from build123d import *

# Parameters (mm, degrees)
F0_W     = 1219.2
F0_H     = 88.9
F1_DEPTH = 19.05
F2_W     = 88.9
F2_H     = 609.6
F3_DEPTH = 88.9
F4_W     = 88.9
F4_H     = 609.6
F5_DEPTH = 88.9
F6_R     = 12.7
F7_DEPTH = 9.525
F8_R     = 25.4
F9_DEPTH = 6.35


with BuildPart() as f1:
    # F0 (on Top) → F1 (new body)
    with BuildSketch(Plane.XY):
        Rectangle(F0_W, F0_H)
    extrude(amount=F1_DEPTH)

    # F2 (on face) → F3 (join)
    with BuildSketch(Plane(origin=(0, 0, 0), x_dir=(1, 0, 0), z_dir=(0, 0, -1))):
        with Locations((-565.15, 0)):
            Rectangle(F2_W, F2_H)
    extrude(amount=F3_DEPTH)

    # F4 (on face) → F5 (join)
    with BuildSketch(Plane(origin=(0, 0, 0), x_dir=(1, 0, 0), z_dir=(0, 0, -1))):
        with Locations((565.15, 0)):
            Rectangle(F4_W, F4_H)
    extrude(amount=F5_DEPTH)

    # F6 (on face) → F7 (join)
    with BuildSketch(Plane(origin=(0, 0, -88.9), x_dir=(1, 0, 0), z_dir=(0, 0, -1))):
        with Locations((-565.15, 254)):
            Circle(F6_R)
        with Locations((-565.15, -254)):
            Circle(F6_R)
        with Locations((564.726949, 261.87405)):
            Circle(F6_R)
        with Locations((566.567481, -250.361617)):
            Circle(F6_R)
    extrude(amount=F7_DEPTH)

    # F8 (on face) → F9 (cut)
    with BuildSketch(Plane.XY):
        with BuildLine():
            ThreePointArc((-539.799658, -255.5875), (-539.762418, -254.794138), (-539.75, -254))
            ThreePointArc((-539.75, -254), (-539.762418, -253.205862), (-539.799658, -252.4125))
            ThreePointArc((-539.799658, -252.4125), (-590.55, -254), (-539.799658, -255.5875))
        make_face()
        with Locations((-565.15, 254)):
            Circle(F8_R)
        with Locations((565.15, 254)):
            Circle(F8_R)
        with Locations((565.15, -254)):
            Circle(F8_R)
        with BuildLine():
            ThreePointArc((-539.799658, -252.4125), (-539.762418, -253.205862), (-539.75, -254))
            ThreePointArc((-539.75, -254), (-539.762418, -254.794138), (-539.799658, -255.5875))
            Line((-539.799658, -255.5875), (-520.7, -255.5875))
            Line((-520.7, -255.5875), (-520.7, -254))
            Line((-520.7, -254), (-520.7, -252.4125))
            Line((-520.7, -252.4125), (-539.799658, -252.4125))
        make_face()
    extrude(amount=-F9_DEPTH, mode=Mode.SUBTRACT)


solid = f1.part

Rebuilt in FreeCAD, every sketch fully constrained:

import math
import FreeCAD as App
import Part
import Sketcher
Q = App.Units.Quantity


def add_polygon(sketch, points):
    """Adds a closed chain of lines whose ends are joined by coincident constraints."""
    first, n = sketch.GeometryCount, len(points)
    for a, b in zip(points, points[1:] + points[:1]):
        sketch.addGeometry(Part.LineSegment(App.Vector(*a, 0), App.Vector(*b, 0)), False)
    for i in range(n):
        sketch.addConstraint(Sketcher.Constraint("Coincident", first + i, 2, first + (i + 1) % n, 1))

doc = App.newDocument("Part")
body = doc.addObject("PartDesign::Body", "Body")

sketch1 = body.newObject("Sketcher::SketchObject", "Sketch")
sketch1.AttachmentSupport = (doc.getObject("XY_Plane"), [""])
sketch1.MapMode = "FlatFace"
add_polygon(sketch1, [(-610, 44), (-610, -44), (610, -44), (610, 44)])
sketch1.addConstraint(Sketcher.Constraint("Vertical", 0))
sketch1.addConstraint(Sketcher.Constraint("Horizontal", 1))
sketch1.addConstraint(Sketcher.Constraint("Vertical", 2))
sketch1.addConstraint(Sketcher.Constraint("Horizontal", 3))
sketch1.addConstraint(Sketcher.Constraint("Symmetric", 0, 2, 2, 2, -1, 1))
sketch1.addConstraint(Sketcher.Constraint("DistanceX", 1, 1, 1, 2, Q("48 in")))
sketch1.addConstraint(Sketcher.Constraint("DistanceY", 0, 2, 0, 1, Q("3.5 in")))
pad1 = body.newObject("PartDesign::Pad", "Pad")
pad1.Profile = sketch1
pad1.Length = Q("0.75 in")

sketch2 = body.newObject("Sketcher::SketchObject", "Sketch001")
sketch2.AttachmentSupport = (doc.getObject("XY_Plane"), [""])
sketch2.MapMode = "FlatFace"
add_polygon(sketch2, [(-610, -305), (-610, 305), (-521, 305), (-521, -305)])
sketch2.addConstraint(Sketcher.Constraint("Vertical", 0))
sketch2.addConstraint(Sketcher.Constraint("Horizontal", 1))
sketch2.addConstraint(Sketcher.Constraint("Vertical", 2))
sketch2.addConstraint(Sketcher.Constraint("Horizontal", 3))
sketch2.addConstraint(Sketcher.Constraint("DistanceY", 0, 1, 0, 2, Q("24 in")))
sketch2.addConstraint(Sketcher.Constraint("DistanceX", 1, 1, 1, 2, Q("3.5 in")))
sketch2.addConstraint(Sketcher.Constraint("DistanceX", 0, 2, -1, 1, Q("24 in")))
sketch2.addConstraint(Sketcher.Constraint("DistanceY", -1, 1, 0, 2, Q("12 in")))
pad2 = body.newObject("PartDesign::Pad", "Pad001")
pad2.Profile = sketch2
pad2.Length = Q("3.5 in")
pad2.Reversed = True

sketch3 = body.newObject("Sketcher::SketchObject", "Sketch002")
sketch3.AttachmentSupport = (doc.getObject("XY_Plane"), [""])
sketch3.MapMode = "FlatFace"
add_polygon(sketch3, [(521, -305), (521, 305), (610, 305), (610, -305)])
sketch3.addConstraint(Sketcher.Constraint("Vertical", 0))
sketch3.addConstraint(Sketcher.Constraint("Horizontal", 1))
sketch3.addConstraint(Sketcher.Constraint("Vertical", 2))
sketch3.addConstraint(Sketcher.Constraint("Horizontal", 3))
sketch3.addConstraint(Sketcher.Constraint("DistanceY", 0, 1, 0, 2, Q("24 in")))
sketch3.addConstraint(Sketcher.Constraint("DistanceX", 1, 1, 1, 2, Q("3.5 in")))
sketch3.addConstraint(Sketcher.Constraint("DistanceY", -1, 1, 0, 2, Q("12 in")))
sketch3.addConstraint(Sketcher.Constraint("DistanceX", -1, 1, 1, 2, Q("24 in")))
pad3 = body.newObject("PartDesign::Pad", "Pad002")
pad3.Profile = sketch3
pad3.Length = Q("3.5 in")
pad3.Reversed = True

sketch4 = body.newObject("Sketcher::SketchObject", "Sketch003")
sketch4.AttachmentSupport = (doc.getObject("XY_Plane"), [""])
sketch4.MapMode = "FlatFace"
sketch4.AttachmentOffset = App.Placement(App.Vector(0, 0, -3.5 * 25.4), App.Rotation())
sketch4.addGeometry(Part.Circle(App.Vector(-565, -254, 0), App.Vector(0, 0, 1), 13), False)
sketch4.addGeometry(Part.Circle(App.Vector(-565, 254, 0), App.Vector(0, 0, 1), 13), False)
sketch4.addGeometry(Part.Circle(App.Vector(565, -262, 0), App.Vector(0, 0, 1), 13), False)
sketch4.addGeometry(Part.Circle(App.Vector(567, 250, 0), App.Vector(0, 0, 1), 13), False)
sketch4.addConstraint(Sketcher.Constraint("Equal", 0, 1))
sketch4.addConstraint(Sketcher.Constraint("Equal", 1, 2))
sketch4.addConstraint(Sketcher.Constraint("Equal", 2, 3))
sketch4.addConstraint(Sketcher.Constraint("Symmetric", 0, 3, 1, 3, -1))
sketch4.addConstraint(Sketcher.Constraint("Diameter", 0, Q("1 in")))
sketch4.addConstraint(Sketcher.Constraint("DistanceY", 0, 3, -1, 1, Q("10 in")))
sketch4.addConstraint(Sketcher.Constraint("DistanceX", 0, 3, -1, 1, Q("22.25 in")))
sketch4.addConstraint(Sketcher.Constraint("DistanceX", -1, 1, 2, 3, 564.726949))
sketch4.addConstraint(Sketcher.Constraint("DistanceY", 2, 3, -1, 1, 261.87405))
sketch4.addConstraint(Sketcher.Constraint("DistanceX", -1, 1, 3, 3, 566.567481))
sketch4.addConstraint(Sketcher.Constraint("DistanceY", -1, 1, 3, 3, 250.361617))
pad4 = body.newObject("PartDesign::Pad", "Pad003")
pad4.Profile = sketch4
pad4.Length = Q("0.375 in")
pad4.Reversed = True

sketch5 = body.newObject("Sketcher::SketchObject", "Sketch004")
sketch5.AttachmentSupport = (doc.getObject("XY_Plane"), [""])
sketch5.MapMode = "FlatFace"
sketch5.addGeometry(Part.ArcOfCircle(Part.Circle(App.Vector(-565.2, -254, 0), App.Vector(0, 0, 1), 25.4), math.radians(4), math.radians(356)), False)
sketch5.addGeometry(Part.LineSegment(App.Vector(-539.8, -255.6, 0), App.Vector(-520.7, -255.6, 0)), False)
sketch5.addGeometry(Part.LineSegment(App.Vector(-520.7, -255.6, 0), App.Vector(-520.7, -252.4, 0)), False)
sketch5.addGeometry(Part.LineSegment(App.Vector(-520.7, -252.4, 0), App.Vector(-539.8, -252.4, 0)), False)
sketch5.addGeometry(Part.Circle(App.Vector(-565.1, 254, 0), App.Vector(0, 0, 1), 25.4), False)
sketch5.addGeometry(Part.Circle(App.Vector(565.1, 254, 0), App.Vector(0, 0, 1), 25.4), False)
sketch5.addGeometry(Part.Circle(App.Vector(565.1, -254, 0), App.Vector(0, 0, 1), 25.4), False)
sketch5.addConstraint(Sketcher.Constraint("Coincident", 0, 2, 1, 1))
sketch5.addConstraint(Sketcher.Constraint("Coincident", 1, 2, 2, 1))
sketch5.addConstraint(Sketcher.Constraint("Coincident", 2, 2, 3, 1))
sketch5.addConstraint(Sketcher.Constraint("Coincident", 3, 2, 0, 1))
sketch5.addConstraint(Sketcher.Constraint("Horizontal", 1))
sketch5.addConstraint(Sketcher.Constraint("Vertical", 2))
sketch5.addConstraint(Sketcher.Constraint("Horizontal", 3))
sketch5.addConstraint(Sketcher.Constraint("Equal", 0, 4))
sketch5.addConstraint(Sketcher.Constraint("Equal", 4, 5))
sketch5.addConstraint(Sketcher.Constraint("Equal", 5, 6))
sketch5.addConstraint(Sketcher.Constraint("Symmetric", 0, 3, 5, 3, -1, 1))
sketch5.addConstraint(Sketcher.Constraint("Symmetric", 4, 3, 6, 3, -1, 1))
sketch5.addConstraint(Sketcher.Constraint("Symmetric", 4, 3, 5, 3, -2))
sketch5.addConstraint(Sketcher.Constraint("Vertical", 0, 2, 3, 2))
sketch5.addConstraint(Sketcher.Constraint("Diameter", 4, Q("2 in")))
sketch5.addConstraint(Sketcher.Constraint("DistanceY", 0, 3, -1, 1, Q("10 in")))
sketch5.addConstraint(Sketcher.Constraint("DistanceX", 1, 2, -1, 1, Q("20.5 in")))
sketch5.addConstraint(Sketcher.Constraint("DistanceX", 4, 3, 5, 3, Q("44.5 in")))
sketch5.addConstraint(Sketcher.Constraint("DistanceY", 2, 1, 2, 2, Q("0.125 in")))
pocket1 = body.newObject("PartDesign::Pocket", "Pocket")
pocket1.Profile = sketch5
pocket1.Length = Q("0.25 in")

doc.recompute()
